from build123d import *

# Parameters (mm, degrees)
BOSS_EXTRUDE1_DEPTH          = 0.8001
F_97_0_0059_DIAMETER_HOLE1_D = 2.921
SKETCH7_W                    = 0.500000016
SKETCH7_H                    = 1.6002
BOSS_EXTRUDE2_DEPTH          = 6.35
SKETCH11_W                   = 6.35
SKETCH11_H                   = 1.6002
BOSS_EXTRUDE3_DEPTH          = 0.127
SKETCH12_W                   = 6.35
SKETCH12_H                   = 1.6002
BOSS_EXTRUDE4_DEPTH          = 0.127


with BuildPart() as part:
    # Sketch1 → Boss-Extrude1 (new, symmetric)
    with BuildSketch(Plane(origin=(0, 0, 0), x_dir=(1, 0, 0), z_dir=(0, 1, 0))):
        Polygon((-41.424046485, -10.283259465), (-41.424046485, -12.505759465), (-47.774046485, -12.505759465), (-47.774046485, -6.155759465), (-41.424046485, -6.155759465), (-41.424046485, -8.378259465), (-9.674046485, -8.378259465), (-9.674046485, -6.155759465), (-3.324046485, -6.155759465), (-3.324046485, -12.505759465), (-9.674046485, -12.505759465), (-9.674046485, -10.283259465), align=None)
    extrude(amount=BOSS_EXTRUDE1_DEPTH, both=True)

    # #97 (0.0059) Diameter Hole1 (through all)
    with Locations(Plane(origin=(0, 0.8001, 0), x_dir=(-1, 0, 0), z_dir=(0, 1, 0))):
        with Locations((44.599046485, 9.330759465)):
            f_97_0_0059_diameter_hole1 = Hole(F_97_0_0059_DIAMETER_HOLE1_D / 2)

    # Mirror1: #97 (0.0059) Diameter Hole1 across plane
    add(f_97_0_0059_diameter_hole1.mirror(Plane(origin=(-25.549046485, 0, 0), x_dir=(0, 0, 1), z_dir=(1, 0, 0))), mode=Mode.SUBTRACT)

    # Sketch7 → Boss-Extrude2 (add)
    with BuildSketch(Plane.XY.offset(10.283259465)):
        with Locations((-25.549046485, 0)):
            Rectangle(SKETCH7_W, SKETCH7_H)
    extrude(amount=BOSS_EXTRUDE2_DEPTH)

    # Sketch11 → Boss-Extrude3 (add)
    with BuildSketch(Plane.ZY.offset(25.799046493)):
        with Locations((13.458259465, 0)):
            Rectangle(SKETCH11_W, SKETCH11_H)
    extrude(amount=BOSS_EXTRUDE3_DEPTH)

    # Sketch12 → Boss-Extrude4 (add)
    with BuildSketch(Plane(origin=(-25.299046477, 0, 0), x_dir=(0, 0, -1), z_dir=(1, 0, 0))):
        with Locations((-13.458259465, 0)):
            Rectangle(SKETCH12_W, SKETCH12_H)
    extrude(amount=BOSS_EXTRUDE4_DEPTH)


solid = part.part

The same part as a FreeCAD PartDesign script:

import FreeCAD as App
import Part
import Sketcher
from FreeCAD import Vector
Q = App.Units.Quantity

doc = App.newDocument("Part")
body = doc.addObject("PartDesign::Body", "Body")

sketch1 = body.newObject("Sketcher::SketchObject", "Sketch")
sketch1.AttachmentSupport = (doc.getObject("XZ_Plane"), [""])
sketch1.MapMode = "FlatFace"
sketch1.addGeometry(Part.LineSegment(Vector(-41.4, 12.5, 0), Vector(-41.4, 10.3, 0)), False)
sketch1.addGeometry(Part.LineSegment(Vector(-41.4, 10.3, 0), Vector(-9.7, 10.3, 0)), False)
sketch1.addGeometry(Part.LineSegment(Vector(-9.7, 10.3, 0), Vector(-9.7, 12.5, 0)), False)
sketch1.addGeometry(Part.LineSegment(Vector(-9.7, 12.5, 0), Vector(-3.3, 12.5, 0)), False)
sketch1.addGeometry(Part.LineSegment(Vector(-3.3, 12.5, 0), Vector(-3.3, 6.2, 0)), False)
sketch1.addGeometry(Part.LineSegment(Vector(-3.3, 6.2, 0), Vector(-9.7, 6.2, 0)), False)
sketch1.addGeometry(Part.LineSegment(Vector(-9.7, 6.2, 0), Vector(-9.7, 8.4, 0)), False)
sketch1.addGeometry(Part.LineSegment(Vector(-9.7, 8.4, 0), Vector(-41.4, 8.4, 0)), False)
sketch1.addGeometry(Part.LineSegment(Vector(-41.4, 8.4, 0), Vector(-41.4, 6.2, 0)), False)
sketch1.addGeometry(Part.LineSegment(Vector(-41.4, 6.2, 0), Vector(-47.8, 6.2, 0)), False)
sketch1.addGeometry(Part.LineSegment(Vector(-47.8, 6.2, 0), Vector(-47.8, 12.5, 0)), False)
sketch1.addGeometry(Part.LineSegment(Vector(-47.8, 12.5, 0), Vector(-41.4, 12.5, 0)), False)
sketch1.addConstraint(Sketcher.Constraint("Coincident", 0, 2, 1, 1))
sketch1.addConstraint(Sketcher.Constraint("Coincident", 1, 2, 2, 1))
sketch1.addConstraint(Sketcher.Constraint("Coincident", 2, 2, 3, 1))
sketch1.addConstraint(Sketcher.Constraint("Coincident", 3, 2, 4, 1))
sketch1.addConstraint(Sketcher.Constraint("Coincident", 4, 2, 5, 1))
sketch1.addConstraint(Sketcher.Constraint("Coincident", 5, 2, 6, 1))
sketch1.addConstraint(Sketcher.Constraint("Coincident", 6, 2, 7, 1))
sketch1.addConstraint(Sketcher.Constraint("Coincident", 7, 2, 8, 1))
sketch1.addConstraint(Sketcher.Constraint("Coincident", 8, 2, 9, 1))
sketch1.addConstraint(Sketcher.Constraint("Coincident", 9, 2, 10, 1))
sketch1.addConstraint(Sketcher.Constraint("Coincident", 10, 2, 11, 1))
sketch1.addConstraint(Sketcher.Constraint("Coincident", 11, 2, 0, 1))
sketch1.addConstraint(Sketcher.Constraint("Vertical", 0))
sketch1.addConstraint(Sketcher.Constraint("Horizontal", 1))
sketch1.addConstraint(Sketcher.Constraint("Vertical", 2))
sketch1.addConstraint(Sketcher.Constraint("Horizontal", 3))
sketch1.addConstraint(Sketcher.Constraint("Vertical", 4))
sketch1.addConstraint(Sketcher.Constraint("Horizontal", 5))
sketch1.addConstraint(Sketcher.Constraint("Vertical", 6))
sketch1.addConstraint(Sketcher.Constraint("Horizontal", 7))
sketch1.addConstraint(Sketcher.Constraint("Vertical", 8))
sketch1.addConstraint(Sketcher.Constraint("Horizontal", 9))
sketch1.addConstraint(Sketcher.Constraint("Vertical", 10))
sketch1.addConstraint(Sketcher.Constraint("Horizontal", 11))
sketch1.addConstraint(Sketcher.Constraint("Horizontal", 5, 2, 8, 2))
sketch1.addConstraint(Sketcher.Constraint("Horizontal", 3, 2, 10, 2))
sketch1.addConstraint(Sketcher.Constraint("Vertical", 2, 2, 5, 2))
sketch1.addConstraint(Sketcher.Constraint("Vertical", 0, 2, 7, 2))
sketch1.addConstraint(Sketcher.Constraint("Equal", 5, 9))
sketch1.addConstraint(Sketcher.Constraint("Equal", 11, 4))
sketch1.addConstraint(Sketcher.Constraint("Equal", 2, 6))
sketch1.addConstraint(Sketcher.Constraint("DistanceX", 1, 1, 1, 2, Q("1.25 in")))
sketch1.addConstraint(Sketcher.Constraint("DistanceX", 3, 1, 3, 2, Q("0.25 in")))
sketch1.addConstraint(Sketcher.Constraint("DistanceY", 0, 2, 0, 1, Q("0.0875 in")))
sketch1.addConstraint(Sketcher.Constraint("DistanceY", -1, 1, 0, 2, 10.283259))
sketch1.addConstraint(Sketcher.Constraint("DistanceX", 0, 2, -1, 1, 41.424046))
pad1 = body.newObject("PartDesign::Pad", "Pad")
pad1.Profile = sketch1
pad1.Length = Q("0.063 in")
pad1.Midplane = True

sketch2 = body.newObject("Sketcher::SketchObject", "Sketch001")
sketch2.AttachmentSupport = (doc.getObject("XZ_Plane"), [""])
sketch2.MapMode = "FlatFace"
sketch2.AttachmentOffset = App.Placement(Vector(0, 0, -0.0315 * 25.4), App.Rotation())
sketch2.addGeometry(Part.Circle(Vector(-44.6, 9.3, 0), Vector(0, 0, 1), 1.5), False)
sketch2.addConstraint(Sketcher.Constraint("Diameter", 0, Q("0.115 in")))
sketch2.addConstraint(Sketcher.Constraint("DistanceY", -1, 1, 0, 3, 9.330759))
sketch2.addConstraint(Sketcher.Constraint("DistanceX", 0, 3, -1, 1, 44.599046))
doc.recompute()
hole = body.newObject("PartDesign::Hole", "Hole")
hole.Profile = sketch2
hole.ThreadType = "None"
hole.Diameter = Q("0.115 in")
hole.DepthType = "ThroughAll"
hole.Reversed = True
doc.recompute()

datumplane = body.newObject("PartDesign::Plane", "DatumPlane")
datumplane.AttachmentSupport = (doc.getObject("YZ_Plane"), [""])
datumplane.MapMode = "FlatFace"
datumplane.AttachmentOffset = App.Placement(Vector(0, 0, -25.549046), App.Rotation())
mirrored = body.newObject("PartDesign::Mirrored", "Mirrored")
mirrored.Originals = [hole]
mirrored.MirrorPlane = (datumplane, [""])
body.Tip = mirrored

sketch3 = body.newObject("Sketcher::SketchObject", "Sketch002")
sketch3.AttachmentSupport = (doc.getObject("XY_Plane"), [""])
sketch3.MapMode = "FlatFace"
sketch3.AttachmentOffset = App.Placement(Vector(0, 0, 10.283259), App.Rotation())
sketch3.addGeometry(Part.LineSegment(Vector(-25.8, 0.8, 0), Vector(-25.8, -0.8, 0)), False)
sketch3.addGeometry(Part.LineSegment(Vector(-25.8, -0.8, 0), Vector(-25.3, -0.8, 0)), False)
sketch3.addGeometry(Part.LineSegment(Vector(-25.3, -0.8, 0), Vector(-25.3, 0.8, 0)), False)
sketch3.addGeometry(Part.LineSegment(Vector(-25.3, 0.8, 0), Vector(-25.8, 0.8, 0)), False)
sketch3.addConstraint(Sketcher.Constraint("Coincident", 0, 2, 1, 1))
sketch3.addConstraint(Sketcher.Constraint("Coincident", 1, 2, 2, 1))
sketch3.addConstraint(Sketcher.Constraint("Coincident", 2, 2, 3, 1))
sketch3.addConstraint(Sketcher.Constraint("Coincident", 3, 2, 0, 1))
sketch3.addConstraint(Sketcher.Constraint("Vertical", 0))
sketch3.addConstraint(Sketcher.Constraint("Horizontal", 1))
sketch3.addConstraint(Sketcher.Constraint("Vertical", 2))
sketch3.addConstraint(Sketcher.Constraint("Horizontal", 3))
sketch3.addConstraint(Sketcher.Constraint("DistanceY", 0, 2, 0, 1, Q("0.063 in")))
sketch3.addConstraint(Sketcher.Constraint("DistanceX", 1, 1, 1, 2, 0.5))
sketch3.addConstraint(Sketcher.Constraint("DistanceY", 0, 2, -1, 1, Q("0.0315 in")))
sketch3.addConstraint(Sketcher.Constraint("DistanceX", 0, 2, -1, 1, 25.799046))
pad2 = body.newObject("PartDesign::Pad", "Pad001")
pad2.Profile = sketch3
pad2.Length = Q("0.25 in")

sketch4 = body.newObject("Sketcher::SketchObject", "Sketch003")
sketch4.AttachmentSupport = (doc.getObject("YZ_Plane"), [""])
sketch4.MapMode = "FlatFace"
sketch4.AttachmentOffset = App.Placement(Vector(0, 0, -25.799046), App.Rotation())
sketch4.addGeometry(Part.LineSegment(Vector(0.8, 10.3, 0), Vector(-0.8, 10.3, 0)), False)
sketch4.addGeometry(Part.LineSegment(Vector(-0.8, 10.3, 0), Vector(-0.8, 16.6, 0)), False)
sketch4.addGeometry(Part.LineSegment(Vector(-0.8, 16.6, 0), Vector(0.8, 16.6, 0)), False)
sketch4.addGeometry(Part.LineSegment(Vector(0.8, 16.6, 0), Vector(0.8, 10.3, 0)), False)
sketch4.addConstraint(Sketcher.Constraint("Coincident", 0, 2, 1, 1))
sketch4.addConstraint(Sketcher.Constraint("Coincident", 1, 2, 2, 1))
sketch4.addConstraint(Sketcher.Constraint("Coincident", 2, 2, 3, 1))
sketch4.addConstraint(Sketcher.Constraint("Coincident", 3, 2, 0, 1))
sketch4.addConstraint(Sketcher.Constraint("Horizontal", 0))
sketch4.addConstraint(Sketcher.Constraint("Vertical", 1))
sketch4.addConstraint(Sketcher.Constraint("Horizontal", 2))
sketch4.addConstraint(Sketcher.Constraint("Vertical", 3))
sketch4.addConstraint(Sketcher.Constraint("DistanceY", 1, 1, 1, 2, Q("0.25 in")))
sketch4.addConstraint(Sketcher.Constraint("DistanceX", 0, 2, 0, 1, Q("0.063 in")))
sketch4.addConstraint(Sketcher.Constraint("DistanceX", 0, 2, -1, 1, Q("0.0315 in")))
sketch4.addConstraint(Sketcher.Constraint("DistanceY", -1, 1, 0, 2, 10.283259))
pad3 = body.newObject("PartDesign::Pad", "Pad002")
pad3.Profile = sketch4
pad3.Length = Q("0.005 in")
pad3.Reversed = True

sketch5 = body.newObject("Sketcher::SketchObject", "Sketch004")
sketch5.AttachmentSupport = (doc.getObject("YZ_Plane"), [""])
sketch5.MapMode = "FlatFace"
sketch5.AttachmentOffset = App.Placement(Vector(0, 0, -25.299046), App.Rotation())
sketch5.addGeometry(Part.LineSegment(Vector(0.8, 16.6, 0), Vector(-0.8, 16.6, 0)), False)
sketch5.addGeometry(Part.LineSegment(Vector(-0.8, 16.6, 0), Vector(-0.8, 10.3, 0)), False)
sketch5.addGeometry(Part.LineSegment(Vector(-0.8, 10.3, 0), Vector(0.8, 10.3, 0)), False)
sketch5.addGeometry(Part.LineSegment(Vector(0.8, 10.3, 0), Vector(0.8, 16.6, 0)), False)
sketch5.addConstraint(Sketcher.Constraint("Coincident", 0, 2, 1, 1))
sketch5.addConstraint(Sketcher.Constraint("Coincident", 1, 2, 2, 1))
sketch5.addConstraint(Sketcher.Constraint("Coincident", 2, 2, 3, 1))
sketch5.addConstraint(Sketcher.Constraint("Coincident", 3, 2, 0, 1))
sketch5.addConstraint(Sketcher.Constraint("Horizontal", 0))
sketch5.addConstraint(Sketcher.Constraint("Vertical", 1))
sketch5.addConstraint(Sketcher.Constraint("Horizontal", 2))
sketch5.addConstraint(Sketcher.Constraint("Vertical", 3))
sketch5.addConstraint(Sketcher.Constraint("DistanceY", 1, 2, 1, 1, Q("0.25 in")))
sketch5.addConstraint(Sketcher.Constraint("DistanceX", 0, 2, 0, 1, Q("0.063 in")))
sketch5.addConstraint(Sketcher.Constraint("DistanceX", 0, 2, -1, 1, Q("0.0315 in")))
sketch5.addConstraint(Sketcher.Constraint("DistanceY", -1, 1, 0, 2, 16.633259))
pad4 = body.newObject("PartDesign::Pad", "Pad003")
pad4.Profile = sketch5
pad4.Length = Q("0.005 in")

doc.recompute()
